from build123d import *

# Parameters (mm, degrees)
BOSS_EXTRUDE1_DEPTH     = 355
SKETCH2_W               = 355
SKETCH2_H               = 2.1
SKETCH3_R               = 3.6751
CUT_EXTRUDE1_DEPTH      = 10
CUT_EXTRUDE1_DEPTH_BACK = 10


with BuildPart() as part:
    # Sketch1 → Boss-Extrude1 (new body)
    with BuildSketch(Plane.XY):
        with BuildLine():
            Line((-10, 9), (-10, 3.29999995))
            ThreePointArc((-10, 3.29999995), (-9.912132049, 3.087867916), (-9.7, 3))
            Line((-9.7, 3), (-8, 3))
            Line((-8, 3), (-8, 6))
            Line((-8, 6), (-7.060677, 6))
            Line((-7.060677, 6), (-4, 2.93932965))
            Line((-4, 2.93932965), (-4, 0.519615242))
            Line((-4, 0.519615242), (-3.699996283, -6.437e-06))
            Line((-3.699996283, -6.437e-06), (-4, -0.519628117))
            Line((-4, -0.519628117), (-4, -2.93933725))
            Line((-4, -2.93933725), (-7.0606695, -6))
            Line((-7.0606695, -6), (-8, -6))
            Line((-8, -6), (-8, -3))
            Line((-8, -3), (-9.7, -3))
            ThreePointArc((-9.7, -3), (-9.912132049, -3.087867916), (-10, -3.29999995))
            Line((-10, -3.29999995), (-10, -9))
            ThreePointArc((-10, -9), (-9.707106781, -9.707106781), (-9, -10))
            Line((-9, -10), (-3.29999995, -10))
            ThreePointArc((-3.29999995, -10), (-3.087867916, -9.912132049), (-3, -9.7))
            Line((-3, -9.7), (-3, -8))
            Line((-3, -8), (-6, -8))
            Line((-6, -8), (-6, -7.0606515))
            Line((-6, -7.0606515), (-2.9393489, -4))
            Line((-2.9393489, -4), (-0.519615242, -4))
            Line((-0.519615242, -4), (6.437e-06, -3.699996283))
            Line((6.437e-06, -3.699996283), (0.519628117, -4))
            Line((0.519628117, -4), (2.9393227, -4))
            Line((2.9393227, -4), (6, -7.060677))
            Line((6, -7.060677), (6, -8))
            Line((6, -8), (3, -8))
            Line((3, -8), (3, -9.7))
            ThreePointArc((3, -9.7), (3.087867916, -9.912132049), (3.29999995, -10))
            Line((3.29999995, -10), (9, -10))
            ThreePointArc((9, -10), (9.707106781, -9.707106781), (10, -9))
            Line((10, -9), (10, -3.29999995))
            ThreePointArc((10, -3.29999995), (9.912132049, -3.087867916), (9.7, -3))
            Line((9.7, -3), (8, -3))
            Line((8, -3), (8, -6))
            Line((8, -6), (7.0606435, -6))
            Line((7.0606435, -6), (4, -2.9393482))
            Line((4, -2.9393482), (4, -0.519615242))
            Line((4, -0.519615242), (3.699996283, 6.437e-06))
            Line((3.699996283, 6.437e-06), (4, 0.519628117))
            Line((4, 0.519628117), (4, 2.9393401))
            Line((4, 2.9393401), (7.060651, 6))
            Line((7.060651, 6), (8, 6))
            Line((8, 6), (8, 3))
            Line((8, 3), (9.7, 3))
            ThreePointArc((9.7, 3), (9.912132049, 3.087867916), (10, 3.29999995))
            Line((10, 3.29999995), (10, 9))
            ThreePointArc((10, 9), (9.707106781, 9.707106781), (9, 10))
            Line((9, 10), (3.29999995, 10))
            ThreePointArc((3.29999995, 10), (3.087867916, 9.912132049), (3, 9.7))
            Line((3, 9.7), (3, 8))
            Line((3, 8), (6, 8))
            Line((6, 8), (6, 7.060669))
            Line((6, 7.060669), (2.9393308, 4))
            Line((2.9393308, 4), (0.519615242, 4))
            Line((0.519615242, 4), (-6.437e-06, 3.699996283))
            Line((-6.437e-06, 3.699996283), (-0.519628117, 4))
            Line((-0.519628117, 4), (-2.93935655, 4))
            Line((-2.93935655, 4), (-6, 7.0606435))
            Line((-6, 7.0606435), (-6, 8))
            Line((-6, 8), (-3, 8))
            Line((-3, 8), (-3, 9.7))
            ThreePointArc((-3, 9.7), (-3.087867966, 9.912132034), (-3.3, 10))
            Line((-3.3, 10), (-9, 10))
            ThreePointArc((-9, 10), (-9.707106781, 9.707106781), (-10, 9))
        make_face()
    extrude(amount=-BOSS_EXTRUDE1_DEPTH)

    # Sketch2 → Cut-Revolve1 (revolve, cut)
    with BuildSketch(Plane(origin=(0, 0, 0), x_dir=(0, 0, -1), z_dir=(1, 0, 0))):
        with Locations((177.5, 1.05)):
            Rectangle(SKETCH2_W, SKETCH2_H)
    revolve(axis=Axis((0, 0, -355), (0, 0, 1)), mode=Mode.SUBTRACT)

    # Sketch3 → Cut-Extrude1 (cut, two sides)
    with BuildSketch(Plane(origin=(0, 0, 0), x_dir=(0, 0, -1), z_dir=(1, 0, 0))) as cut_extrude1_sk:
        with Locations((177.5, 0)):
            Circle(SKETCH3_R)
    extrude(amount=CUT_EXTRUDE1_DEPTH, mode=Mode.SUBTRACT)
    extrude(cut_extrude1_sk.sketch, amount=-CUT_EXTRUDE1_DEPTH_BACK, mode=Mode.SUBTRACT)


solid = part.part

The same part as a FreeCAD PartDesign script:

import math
import FreeCAD as App
import Part
import Sketcher

V = App.Vector
Q = App.Units.Quantity


def add_polygon(sketch, points):
    """Adds a closed chain of lines whose ends are joined by coincident constraints."""
    first, n = sketch.GeometryCount, len(points)
    for a, b in zip(points, points[1:] + points[:1]):
        sketch.addGeometry(Part.LineSegment(App.Vector(*a, 0), App.Vector(*b, 0)), False)
    for i in range(n):
        sketch.addConstraint(Sketcher.Constraint("Coincident", first + i, 2, first + (i + 1) % n, 1))

doc = App.newDocument("Part")
body = doc.addObject("PartDesign::Body", "Body")

sketch1 = body.newObject("Sketcher::SketchObject", "Sketch")
sketch1.AttachmentSupport = (doc.getObject("XY_Plane"), [""])
sketch1.MapMode = "FlatFace"
sketch1.addGeometry([
    Part.LineSegment(V(-10, 9, 0), V(-10, 3.3, 0)),
    Part.ArcOfCircle(Part.Circle(V(-9.7, 3.3, 0), V(0, 0, 1), 0.3), math.radians(180), math.radians(270)),
    Part.LineSegment(V(-9.7, 3, 0), V(-8, 3, 0)),
    Part.LineSegment(V(-8, 3, 0), V(-8, 6, 0)),
    Part.LineSegment(V(-8, 6, 0), V(-7.06, 6, 0)),
    Part.LineSegment(V(-7.06, 6, 0), V(-4, 2.94, 0)),
    Part.LineSegment(V(-4, 2.94, 0), V(-4, 0.52, 0)),
    Part.LineSegment(V(-4, 0.52, 0), V(-3.7, 0, 0)),
    Part.LineSegment(V(-3.7, 0, 0), V(-4, -0.52, 0)),
    Part.LineSegment(V(-4, -0.52, 0), V(-4, -2.94, 0)),
    Part.LineSegment(V(-4, -2.94, 0), V(-7.06, -6, 0)),
    Part.LineSegment(V(-7.06, -6, 0), V(-8, -6, 0)),
    Part.LineSegment(V(-8, -6, 0), V(-8, -3, 0)),
    Part.LineSegment(V(-8, -3, 0), V(-9.7, -3, 0)),
    Part.ArcOfCircle(Part.Circle(V(-9.7, -3.3, 0), V(0, 0, 1), 0.3), math.radians(90), math.radians(180)),
    Part.LineSegment(V(-10, -3.3, 0), V(-10, -9, 0)),
    Part.ArcOfCircle(Part.Circle(V(-9, -9, 0), V(0, 0, 1), 1), math.radians(-180), math.radians(-90)),
    Part.LineSegment(V(-9, -10, 0), V(-3.3, -10, 0)),
    Part.ArcOfCircle(Part.Circle(V(-3.3, -9.7, 0), V(0, 0, 1), 0.3), math.radians(-90), math.radians(0)),
    Part.LineSegment(V(-3, -9.7, 0), V(-3, -8, 0)),
    Part.LineSegment(V(-3, -8, 0), V(-6, -8, 0)),
    Part.LineSegment(V(-6, -8, 0), V(-6, -7.06, 0)),
    Part.LineSegment(V(-6, -7.06, 0), V(-2.94, -4, 0)),
    Part.LineSegment(V(-2.94, -4, 0), V(-0.52, -4, 0)),
    Part.LineSegment(V(-0.52, -4, 0), V(0, -3.7, 0)),
    Part.LineSegment(V(0, -3.7, 0), V(0.52, -4, 0)),
    Part.LineSegment(V(0.52, -4, 0), V(2.94, -4, 0)),
    Part.LineSegment(V(2.94, -4, 0), V(6, -7.06, 0)),
    Part.LineSegment(V(6, -7.06, 0), V(6, -8, 0)),
    Part.LineSegment(V(6, -8, 0), V(3, -8, 0)),
    Part.LineSegment(V(3, -8, 0), V(3, -9.7, 0)),
    Part.ArcOfCircle(Part.Circle(V(3.3, -9.7, 0), V(0, 0, 1), 0.3), math.radians(180), math.radians(270)),
    Part.LineSegment(V(3.3, -10, 0), V(9, -10, 0)),
    Part.ArcOfCircle(Part.Circle(V(9, -9, 0), V(0, 0, 1), 1), math.radians(-90), math.radians(0)),
    Part.LineSegment(V(10, -9, 0), V(10, -3.3, 0)),
    Part.ArcOfCircle(Part.Circle(V(9.7, -3.3, 0), V(0, 0, 1), 0.3), math.radians(0), math.radians(90)),
    Part.LineSegment(V(9.7, -3, 0), V(8, -3, 0)),
    Part.LineSegment(V(8, -3, 0), V(8, -6, 0)),
    Part.LineSegment(V(8, -6, 0), V(7.06, -6, 0)),
    Part.LineSegment(V(7.06, -6, 0), V(4, -2.94, 0)),
    Part.LineSegment(V(4, -2.94, 0), V(4, -0.52, 0)),
    Part.LineSegment(V(4, -0.52, 0), V(3.7, 0, 0)),
    Part.LineSegment(V(3.7, 0, 0), V(4, 0.52, 0)),
    Part.LineSegment(V(4, 0.52, 0), V(4, 2.94, 0)),
    Part.LineSegment(V(4, 2.94, 0), V(7.06, 6, 0)),
    Part.LineSegment(V(7.06, 6, 0), V(8, 6, 0)),
    Part.LineSegment(V(8, 6, 0), V(8, 3, 0)),
    Part.LineSegment(V(8, 3, 0), V(9.7, 3, 0)),
    Part.ArcOfCircle(Part.Circle(V(9.7, 3.3, 0), V(0, 0, 1), 0.3), math.radians(-90), math.radians(0)),
    Part.LineSegment(V(10, 3.3, 0), V(10, 9, 0)),
    Part.ArcOfCircle(Part.Circle(V(9, 9, 0), V(0, 0, 1), 1), math.radians(0), math.radians(90)),
    Part.LineSegment(V(9, 10, 0), V(3.3, 10, 0)),
    Part.ArcOfCircle(Part.Circle(V(3.3, 9.7, 0), V(0, 0, 1), 0.3), math.radians(90), math.radians(180)),
    Part.LineSegment(V(3, 9.7, 0), V(3, 8, 0)),
    Part.LineSegment(V(3, 8, 0), V(6, 8, 0)),
    Part.LineSegment(V(6, 8, 0), V(6, 7.06, 0)),
    Part.LineSegment(V(6, 7.06, 0), V(2.94, 4, 0)),
    Part.LineSegment(V(2.94, 4, 0), V(0.52, 4, 0)),
    Part.LineSegment(V(0.52, 4, 0), V(0, 3.7, 0)),
    Part.LineSegment(V(0, 3.7, 0), V(-0.52, 4, 0)),
    Part.LineSegment(V(-0.52, 4, 0), V(-2.94, 4, 0)),
    Part.LineSegment(V(-2.94, 4, 0), V(-6, 7.06, 0)),
    Part.LineSegment(V(-6, 7.06, 0), V(-6, 8, 0)),
    Part.LineSegment(V(-6, 8, 0), V(-3, 8, 0)),
    Part.LineSegment(V(-3, 8, 0), V(-3, 9.7, 0)),
    Part.ArcOfCircle(Part.Circle(V(-3.3, 9.7, 0), V(0, 0, 1), 0.3), math.radians(0), math.radians(90)),
    Part.LineSegment(V(-3.3, 10, 0), V(-9, 10, 0)),
    Part.ArcOfCircle(Part.Circle(V(-9, 9, 0), V(0, 0, 1), 1), math.radians(90), math.radians(180)),
], False)
sketch1.addConstraint([
    Sketcher.Constraint("Tangent", 0, 2, 1, 1),
    Sketcher.Constraint("Tangent", 1, 2, 2, 1),
    Sketcher.Constraint("Coincident", 2, 2, 3, 1),
    Sketcher.Constraint("Coincident", 3, 2, 4, 1),
    Sketcher.Constraint("Coincident", 4, 2, 5, 1),
    Sketcher.Constraint("Coincident", 5, 2, 6, 1),
    Sketcher.Constraint("Coincident", 6, 2, 7, 1),
    Sketcher.Constraint("Coincident", 7, 2, 8, 1),
    Sketcher.Constraint("Coincident", 8, 2, 9, 1),
    Sketcher.Constraint("Coincident", 9, 2, 10, 1),
    Sketcher.Constraint("Coincident", 10, 2, 11, 1),
    Sketcher.Constraint("Coincident", 11, 2, 12, 1),
    Sketcher.Constraint("Coincident", 12, 2, 13, 1),
    Sketcher.Constraint("Tangent", 13, 2, 14, 1),
    Sketcher.Constraint("Tangent", 14, 2, 15, 1),
    Sketcher.Constraint("Tangent", 15, 2, 16, 1),
    Sketcher.Constraint("Tangent", 16, 2, 17, 1),
    Sketcher.Constraint("Tangent", 17, 2, 18, 1),
    Sketcher.Constraint("Tangent", 18, 2, 19, 1),
    Sketcher.Constraint("Coincident", 19, 2, 20, 1),
    Sketcher.Constraint("Coincident", 20, 2, 21, 1),
    Sketcher.Constraint("Coincident", 21, 2, 22, 1),
    Sketcher.Constraint("Coincident", 22, 2, 23, 1),
    Sketcher.Constraint("Coincident", 23, 2, 24, 1),
    Sketcher.Constraint("Coincident", 24, 2, 25, 1),
    Sketcher.Constraint("Coincident", 25, 2, 26, 1),
    Sketcher.Constraint("Coincident", 26, 2, 27, 1),
    Sketcher.Constraint("Coincident", 27, 2, 28, 1),
    Sketcher.Constraint("Coincident", 28, 2, 29, 1),
    Sketcher.Constraint("Coincident", 29, 2, 30, 1),
    Sketcher.Constraint("Tangent", 30, 2, 31, 1),
    Sketcher.Constraint("Tangent", 31, 2, 32, 1),
    Sketcher.Constraint("Tangent", 32, 2, 33, 1),
    Sketcher.Constraint("Tangent", 33, 2, 34, 1),
    Sketcher.Constraint("Tangent", 34, 2, 35, 1),
    Sketcher.Constraint("Tangent", 35, 2, 36, 1),
    Sketcher.Constraint("Coincident", 36, 2, 37, 1),
    Sketcher.Constraint("Coincident", 37, 2, 38, 1),
    Sketcher.Constraint("Coincident", 38, 2, 39, 1),
    Sketcher.Constraint("Coincident", 39, 2, 40, 1),
    Sketcher.Constraint("Coincident", 40, 2, 41, 1),
    Sketcher.Constraint("Coincident", 41, 2, 42, 1),
    Sketcher.Constraint("Coincident", 42, 2, 43, 1),
    Sketcher.Constraint("Coincident", 43, 2, 44, 1),
    Sketcher.Constraint("Coincident", 44, 2, 45, 1),
    Sketcher.Constraint("Coincident", 45, 2, 46, 1),
    Sketcher.Constraint("Coincident", 46, 2, 47, 1),
    Sketcher.Constraint("Tangent", 47, 2, 48, 1),
    Sketcher.Constraint("Tangent", 48, 2, 49, 1),
    Sketcher.Constraint("Tangent", 49, 2, 50, 1),
    Sketcher.Constraint("Tangent", 50, 2, 51, 1),
    Sketcher.Constraint("Tangent", 51, 2, 52, 1),
    Sketcher.Constraint("Tangent", 52, 2, 53, 1),
    Sketcher.Constraint("Coincident", 53, 2, 54, 1),
    Sketcher.Constraint("Coincident", 54, 2, 55, 1),
    Sketcher.Constraint("Coincident", 55, 2, 56, 1),
    Sketcher.Constraint("Coincident", 56, 2, 57, 1),
    Sketcher.Constraint("Coincident", 57, 2, 58, 1),
    Sketcher.Constraint("Coincident", 58, 2, 59, 1),
    Sketcher.Constraint("Coincident", 59, 2, 60, 1),
    Sketcher.Constraint("Coincident", 60, 2, 61, 1),
    Sketcher.Constraint("Coincident", 61, 2, 62, 1),
    Sketcher.Constraint("Coincident", 62, 2, 63, 1),
    Sketcher.Constraint("Coincident", 63, 2, 64, 1),
    Sketcher.Constraint("Tangent", 64, 2, 65, 1),
    Sketcher.Constraint("Tangent", 65, 2, 66, 1),
    Sketcher.Constraint("Tangent", 66, 2, 67, 1),
    Sketcher.Constraint("Tangent", 67, 2, 0, 1),
    Sketcher.Constraint("Vertical", 0),
    Sketcher.Constraint("Horizontal", 2),
    Sketcher.Constraint("Vertical", 3),
    Sketcher.Constraint("Horizontal", 4),
    Sketcher.Constraint("Vertical", 6),
    Sketcher.Constraint("Vertical", 9),
    Sketcher.Constraint("Horizontal", 11),
    Sketcher.Constraint("Vertical", 12),
    Sketcher.Constraint("Horizontal", 13),
    Sketcher.Constraint("Vertical", 15),
    Sketcher.Constraint("Horizontal", 17),
    Sketcher.Constraint("Vertical", 19),
    Sketcher.Constraint("Horizontal", 20),
    Sketcher.Constraint("Vertical", 21),
    Sketcher.Constraint("Horizontal", 23),
    Sketcher.Constraint("Horizontal", 26),
    Sketcher.Constraint("Vertical", 28),
    Sketcher.Constraint("Horizontal", 29),
    Sketcher.Constraint("Vertical", 30),
    Sketcher.Constraint("Horizontal", 32),
    Sketcher.Constraint("Vertical", 34),
    Sketcher.Constraint("Horizontal", 36),
    Sketcher.Constraint("Vertical", 37),
    Sketcher.Constraint("Horizontal", 38),
    Sketcher.Constraint("Vertical", 40),
    Sketcher.Constraint("Vertical", 43),
    Sketcher.Constraint("Horizontal", 45),
    Sketcher.Constraint("Vertical", 46),
    Sketcher.Constraint("Horizontal", 47),
    Sketcher.Constraint("Vertical", 49),
    Sketcher.Constraint("Horizontal", 51),
    Sketcher.Constraint("Vertical", 53),
    Sketcher.Constraint("Horizontal", 54),
    Sketcher.Constraint("Vertical", 55),
    Sketcher.Constraint("Horizontal", 57),
    Sketcher.Constraint("Horizontal", 60),
    Sketcher.Constraint("Vertical", 62),
    Sketcher.Constraint("Horizontal", 63),
    Sketcher.Constraint("Vertical", 64),
    Sketcher.Constraint("Horizontal", 66),
    Sketcher.Constraint("Equal", 1, 14),
    Sketcher.Constraint("Equal", 14, 18),
    Sketcher.Constraint("Equal", 18, 31),
    Sketcher.Constraint("Equal", 16, 33),
    Sketcher.Constraint("Equal", 31, 35),
    Sketcher.Constraint("Equal", 35, 48),
    Sketcher.Constraint("Equal", 33, 50),
    Sketcher.Constraint("Equal", 48, 52),
    Sketcher.Constraint("Equal", 52, 65),
    Sketcher.Constraint("Equal", 50, 67),
    Sketcher.Constraint("Symmetric", 1, 3, 35, 3, -1, 1),
    Sketcher.Constraint("Symmetric", 14, 3, 48, 3, -1, 1),
    Sketcher.Constraint("Symmetric", 18, 3, 52, 3, -1, 1),
    Sketcher.Constraint("Symmetric", 31, 3, 65, 3, -1, 1),
    Sketcher.Constraint("Symmetric", 3, 2, 37, 2, -1, 1),
    Sketcher.Constraint("Symmetric", 6, 2, 40, 2, -1, 1),
    Sketcher.Constraint("Symmetric", 7, 2, 41, 2, -1, 1),
    Sketcher.Constraint("Symmetric", 8, 2, 42, 2, -1, 1),
    Sketcher.Constraint("Symmetric", 11, 2, 45, 2, -1, 1),
    Sketcher.Constraint("Symmetric", 20, 2, 54, 2, -1, 1),
    Sketcher.Constraint("Symmetric", 23, 2, 57, 2, -1, 1),
    Sketcher.Constraint("Symmetric", 24, 2, 58, 2, -1, 1),
    Sketcher.Constraint("Symmetric", 25, 2, 59, 2, -1, 1),
    Sketcher.Constraint("Symmetric", 28, 2, 62, 2, -1, 1),
    Sketcher.Constraint("Symmetric", 18, 3, 31, 3, -2),
    Sketcher.Constraint("Symmetric", 14, 3, 35, 3, -2),
    Sketcher.Constraint("Symmetric", 20, 2, 28, 2, -2),
    Sketcher.Constraint("Symmetric", 11, 2, 37, 2, -2),
    Sketcher.Constraint("Symmetric", 5, 2, 9, 2, -1),
    Sketcher.Constraint("Symmetric", 26, 2, 56, 2, -1),
    Sketcher.Constraint("Parallel", 10, 22),
    Sketcher.Constraint("Perpendicular", 7, 24),
    Sketcher.Constraint("Perpendicular", 8, 25),
    Sketcher.Constraint("Perpendicular", 22, 27),
    Sketcher.Constraint("Parallel", 27, 39),
    Sketcher.Constraint("Perpendicular", 27, 44),
    Sketcher.Constraint("Parallel", 44, 56),
    Sketcher.Constraint("Perpendicular", 56, 61),
    Sketcher.Constraint("Equal", 66, 0),
    Sketcher.Constraint("Equal", 63, 3),
    Sketcher.Constraint("Equal", 57, 6),
    Sketcher.Constraint("Equal", 47, 19),
    Sketcher.Constraint("Equal", 45, 21),
    Sketcher.Constraint("Equal", 4, 28),
    Sketcher.Constraint("Equal", 23, 40),
    Sketcher.Constraint("Equal", 11, 55),
    Sketcher.Constraint("Equal", 38, 62),
    Sketcher.Constraint("Equal", 7, 8),
    Sketcher.Constraint("Equal", 8, 24),
    Sketcher.Constraint("Radius", 16, Q("1 mm")),
    Sketcher.Constraint("Radius", 1, Q("0.3 mm")),
    Sketcher.Constraint("DistanceX", 20, 2, 20, 1, Q("3 mm")),
    Sketcher.Constraint("Angle", 7, Q("-60 deg")),
    Sketcher.Constraint("Angle", 22, Q("45.000004 deg")),
    Sketcher.Constraint("DistanceX", 2, 1, 2, 2, Q("1.7 mm")),
    Sketcher.Constraint("DistanceX", 17, 1, 17, 2, Q("5.7 mm")),
    Sketcher.Constraint("DistanceX", 16, 3, -1, 1, Q("9 mm")),
    Sketcher.Constraint("DistanceY", 16, 3, -1, 1, Q("9 mm")),
    Sketcher.Constraint("DistanceX", 5, 2, -1, 1, Q("4 mm")),
    Sketcher.Constraint("DistanceY", 22, 2, -1, 1, Q("4 mm")),
    Sketcher.Constraint("DistanceX", 11, 2, 11, 1, Q("0.93933 mm")),
    Sketcher.Constraint("DistanceX", 45, 1, 45, 2, Q("0.939349 mm")),
    Sketcher.Constraint("DistanceX", 60, 2, 60, 1, Q("2.419728 mm")),
    Sketcher.Constraint("DistanceX", 23, 1, 23, 2, Q("2.419734 mm")),
])
pad1 = body.newObject("PartDesign::Pad", "Pad")
pad1.Profile = sketch1
pad1.Length = 355
pad1.Reversed = True

sketch2 = body.newObject("Sketcher::SketchObject", "Sketch001")
sketch2.AttachmentSupport = (doc.getObject("YZ_Plane"), [""])
sketch2.MapMode = "FlatFace"
add_polygon(sketch2, [(2.1, 0), (0, 0), (0, -355), (2.1, -355)])
sketch2.addConstraint([
    Sketcher.Constraint("Horizontal", 0),
    Sketcher.Constraint("Vertical", 1),
    Sketcher.Constraint("Horizontal", 2),
    Sketcher.Constraint("Vertical", 3),
    Sketcher.Constraint("Coincident", 0, 2, -1, 1),
    Sketcher.Constraint("DistanceY", 1, 2, 1, 1, Q("355 mm")),
    Sketcher.Constraint("DistanceX", 0, 2, 0, 1, Q("2.1 mm")),
])
groove = body.newObject("PartDesign::Groove", "Groove")
groove.Profile = sketch2
groove.ReferenceAxis = (sketch2, ["V_Axis"])
groove.Angle = 360

sketch3 = body.newObject("Sketcher::SketchObject", "Sketch002")
sketch3.AttachmentSupport = (doc.getObject("YZ_Plane"), [""])
sketch3.MapMode = "FlatFace"
sketch3.addGeometry(Part.Circle(V(0, -177.5, 0), V(0, 0, 1), 3.7), False)
sketch3.addConstraint([
    Sketcher.Constraint("PointOnObject", 0, 3, -2),
    Sketcher.Constraint("Diameter", 0, Q("7.3502 mm")),
    Sketcher.Constraint("DistanceY", 0, 3, -1, 1, Q("177.5 mm")),
])
pocket1 = body.newObject("PartDesign::Pocket", "Pocket")
pocket1.Profile = sketch3
pocket1.Type = "ThroughAll"
pocket1.Midplane = True

doc.recompute()
